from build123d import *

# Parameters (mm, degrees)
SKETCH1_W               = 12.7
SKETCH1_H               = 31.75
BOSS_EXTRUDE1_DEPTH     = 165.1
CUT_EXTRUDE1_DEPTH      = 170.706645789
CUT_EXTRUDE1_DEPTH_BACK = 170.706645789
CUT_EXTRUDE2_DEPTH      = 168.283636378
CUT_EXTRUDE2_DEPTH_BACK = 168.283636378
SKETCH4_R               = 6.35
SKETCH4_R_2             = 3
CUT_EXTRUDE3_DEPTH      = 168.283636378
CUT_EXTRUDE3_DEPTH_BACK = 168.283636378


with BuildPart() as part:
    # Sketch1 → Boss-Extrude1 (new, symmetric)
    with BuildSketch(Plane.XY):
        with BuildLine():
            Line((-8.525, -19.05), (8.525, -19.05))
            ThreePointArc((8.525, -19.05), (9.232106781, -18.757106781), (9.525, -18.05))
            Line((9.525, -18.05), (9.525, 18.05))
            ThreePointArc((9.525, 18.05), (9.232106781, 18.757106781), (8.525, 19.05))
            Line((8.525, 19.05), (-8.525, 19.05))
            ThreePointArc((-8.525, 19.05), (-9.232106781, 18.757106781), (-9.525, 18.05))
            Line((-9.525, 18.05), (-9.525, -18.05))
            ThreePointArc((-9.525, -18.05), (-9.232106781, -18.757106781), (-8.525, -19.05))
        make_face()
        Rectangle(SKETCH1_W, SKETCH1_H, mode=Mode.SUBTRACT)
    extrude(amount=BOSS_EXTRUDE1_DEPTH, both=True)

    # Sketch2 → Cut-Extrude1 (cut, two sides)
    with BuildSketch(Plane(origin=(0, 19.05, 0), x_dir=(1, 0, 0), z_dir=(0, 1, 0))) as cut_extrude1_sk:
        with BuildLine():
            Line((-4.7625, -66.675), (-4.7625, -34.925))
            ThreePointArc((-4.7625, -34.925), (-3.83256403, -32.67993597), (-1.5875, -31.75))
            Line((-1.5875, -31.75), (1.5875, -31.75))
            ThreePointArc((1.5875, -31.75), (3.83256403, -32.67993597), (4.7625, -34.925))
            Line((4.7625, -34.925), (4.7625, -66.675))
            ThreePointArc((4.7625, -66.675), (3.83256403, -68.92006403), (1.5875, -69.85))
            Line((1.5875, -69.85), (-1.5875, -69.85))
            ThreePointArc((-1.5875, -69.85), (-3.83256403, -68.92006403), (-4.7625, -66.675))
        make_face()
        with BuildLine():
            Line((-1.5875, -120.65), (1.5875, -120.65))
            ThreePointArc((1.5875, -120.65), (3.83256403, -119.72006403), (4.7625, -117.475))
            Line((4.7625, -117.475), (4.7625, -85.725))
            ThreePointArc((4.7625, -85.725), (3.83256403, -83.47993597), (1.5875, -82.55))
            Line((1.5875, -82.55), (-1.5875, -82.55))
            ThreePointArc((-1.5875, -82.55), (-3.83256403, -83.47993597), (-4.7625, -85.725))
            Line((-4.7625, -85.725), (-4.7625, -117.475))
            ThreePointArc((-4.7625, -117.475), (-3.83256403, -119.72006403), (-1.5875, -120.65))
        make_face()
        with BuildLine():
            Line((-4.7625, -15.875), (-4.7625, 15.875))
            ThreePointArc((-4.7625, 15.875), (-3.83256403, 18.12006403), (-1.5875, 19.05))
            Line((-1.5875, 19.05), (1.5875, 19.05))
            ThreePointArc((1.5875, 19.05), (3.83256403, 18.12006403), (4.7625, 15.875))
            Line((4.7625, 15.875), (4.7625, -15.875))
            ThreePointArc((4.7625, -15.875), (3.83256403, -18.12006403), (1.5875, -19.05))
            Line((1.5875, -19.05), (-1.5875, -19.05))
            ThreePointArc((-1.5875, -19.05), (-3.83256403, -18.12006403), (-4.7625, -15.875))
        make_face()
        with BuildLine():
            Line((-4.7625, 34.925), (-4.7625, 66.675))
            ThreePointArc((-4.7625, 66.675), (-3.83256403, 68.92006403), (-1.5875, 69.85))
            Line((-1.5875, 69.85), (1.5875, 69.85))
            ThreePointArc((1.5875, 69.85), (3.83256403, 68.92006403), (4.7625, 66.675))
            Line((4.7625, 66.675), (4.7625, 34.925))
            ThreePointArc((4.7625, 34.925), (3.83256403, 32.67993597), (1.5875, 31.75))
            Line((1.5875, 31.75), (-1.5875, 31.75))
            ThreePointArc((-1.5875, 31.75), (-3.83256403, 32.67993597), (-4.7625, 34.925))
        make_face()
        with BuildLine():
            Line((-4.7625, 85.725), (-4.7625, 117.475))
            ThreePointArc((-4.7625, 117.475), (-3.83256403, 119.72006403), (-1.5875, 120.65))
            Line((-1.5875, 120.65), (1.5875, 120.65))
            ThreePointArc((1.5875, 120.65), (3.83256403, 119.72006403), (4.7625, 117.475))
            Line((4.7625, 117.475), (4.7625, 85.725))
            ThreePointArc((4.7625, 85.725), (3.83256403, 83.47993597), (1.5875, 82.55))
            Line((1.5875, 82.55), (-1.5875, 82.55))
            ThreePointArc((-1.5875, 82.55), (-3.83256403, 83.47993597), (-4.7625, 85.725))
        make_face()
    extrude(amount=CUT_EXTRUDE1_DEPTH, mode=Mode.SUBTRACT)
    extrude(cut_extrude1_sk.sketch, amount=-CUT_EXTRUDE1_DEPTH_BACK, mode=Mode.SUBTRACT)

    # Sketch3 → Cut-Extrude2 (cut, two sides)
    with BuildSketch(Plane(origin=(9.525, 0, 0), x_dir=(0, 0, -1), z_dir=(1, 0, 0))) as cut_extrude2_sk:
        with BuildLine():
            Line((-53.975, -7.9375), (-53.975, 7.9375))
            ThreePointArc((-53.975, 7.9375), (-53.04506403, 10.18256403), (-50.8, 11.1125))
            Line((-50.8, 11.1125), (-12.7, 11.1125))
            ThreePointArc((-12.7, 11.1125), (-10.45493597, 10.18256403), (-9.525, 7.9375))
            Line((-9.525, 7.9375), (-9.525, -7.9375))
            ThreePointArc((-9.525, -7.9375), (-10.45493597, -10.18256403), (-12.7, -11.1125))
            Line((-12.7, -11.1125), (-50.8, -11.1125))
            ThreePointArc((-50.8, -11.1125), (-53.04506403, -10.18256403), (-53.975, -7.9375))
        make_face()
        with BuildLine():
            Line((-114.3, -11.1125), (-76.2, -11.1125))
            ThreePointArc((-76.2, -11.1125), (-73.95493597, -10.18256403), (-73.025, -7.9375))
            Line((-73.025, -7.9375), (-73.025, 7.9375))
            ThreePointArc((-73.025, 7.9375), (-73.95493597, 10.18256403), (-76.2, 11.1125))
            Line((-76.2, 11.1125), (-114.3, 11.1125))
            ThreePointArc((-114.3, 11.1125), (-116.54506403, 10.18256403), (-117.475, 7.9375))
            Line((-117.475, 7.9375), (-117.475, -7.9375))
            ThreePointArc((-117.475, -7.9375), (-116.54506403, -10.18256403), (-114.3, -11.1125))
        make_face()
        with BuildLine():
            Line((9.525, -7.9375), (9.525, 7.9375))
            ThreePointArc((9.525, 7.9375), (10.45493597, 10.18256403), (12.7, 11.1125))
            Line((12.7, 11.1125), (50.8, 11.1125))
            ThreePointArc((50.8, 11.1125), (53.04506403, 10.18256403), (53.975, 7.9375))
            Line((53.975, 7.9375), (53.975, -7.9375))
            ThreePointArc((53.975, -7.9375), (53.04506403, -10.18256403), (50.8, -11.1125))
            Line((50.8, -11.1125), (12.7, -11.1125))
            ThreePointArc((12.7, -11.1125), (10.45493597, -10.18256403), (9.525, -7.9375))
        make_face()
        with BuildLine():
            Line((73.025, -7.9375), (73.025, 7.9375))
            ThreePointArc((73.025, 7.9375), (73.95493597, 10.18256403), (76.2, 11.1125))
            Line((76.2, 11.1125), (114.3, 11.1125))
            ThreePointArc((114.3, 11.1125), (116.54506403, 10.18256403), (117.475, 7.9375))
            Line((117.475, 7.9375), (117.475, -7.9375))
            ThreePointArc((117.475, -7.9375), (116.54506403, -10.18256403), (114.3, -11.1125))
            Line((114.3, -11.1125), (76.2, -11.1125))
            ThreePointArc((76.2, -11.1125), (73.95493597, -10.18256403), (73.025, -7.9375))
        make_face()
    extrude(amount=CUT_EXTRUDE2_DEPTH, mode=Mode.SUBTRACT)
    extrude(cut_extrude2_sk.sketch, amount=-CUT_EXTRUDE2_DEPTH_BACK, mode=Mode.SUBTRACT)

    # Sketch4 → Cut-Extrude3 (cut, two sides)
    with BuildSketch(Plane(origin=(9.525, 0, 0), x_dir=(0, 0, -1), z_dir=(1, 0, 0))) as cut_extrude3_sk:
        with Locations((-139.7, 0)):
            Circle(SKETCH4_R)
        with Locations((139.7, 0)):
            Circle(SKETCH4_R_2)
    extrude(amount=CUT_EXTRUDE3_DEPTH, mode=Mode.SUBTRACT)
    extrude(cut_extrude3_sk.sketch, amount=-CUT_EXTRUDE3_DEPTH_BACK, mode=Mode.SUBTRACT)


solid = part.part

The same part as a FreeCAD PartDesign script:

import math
import FreeCAD as App
import Part
import Sketcher
Q = App.Units.Quantity


def add_polygon(sketch, points):
    """Adds a closed chain of lines whose ends are joined by coincident constraints."""
    first, n = sketch.GeometryCount, len(points)
    for a, b in zip(points, points[1:] + points[:1]):
        sketch.addGeometry(Part.LineSegment(App.Vector(*a, 0), App.Vector(*b, 0)), False)
    for i in range(n):
        sketch.addConstraint(Sketcher.Constraint("Coincident", first + i, 2, first + (i + 1) % n, 1))

doc = App.newDocument("Part")
body = doc.addObject("PartDesign::Body", "Body")

sketch1 = body.newObject("Sketcher::SketchObject", "Sketch")
sketch1.AttachmentSupport = (doc.getObject("XY_Plane"), [""])
sketch1.MapMode = "FlatFace"
sketch1.addGeometry(Part.LineSegment(App.Vector(-8.5, -19.1, 0), App.Vector(8.5, -19.1, 0)), False)
sketch1.addGeometry(Part.ArcOfCircle(Part.Circle(App.Vector(8.5, -18, 0), App.Vector(0, 0, 1), 1), math.radians(-90), math.radians(0)), False)
sketch1.addGeometry(Part.LineSegment(App.Vector(9.5, -18.1, 0), App.Vector(9.5, 18.1, 0)), False)
sketch1.addGeometry(Part.ArcOfCircle(Part.Circle(App.Vector(8.5, 18, 0), App.Vector(0, 0, 1), 1), math.radians(0), math.radians(90)), False)
sketch1.addGeometry(Part.LineSegment(App.Vector(8.5, 19.1, 0), App.Vector(-8.5, 19.1, 0)), False)
sketch1.addGeometry(Part.ArcOfCircle(Part.Circle(App.Vector(-8.5, 18, 0), App.Vector(0, 0, 1), 1), math.radians(90), math.radians(180)), False)
sketch1.addGeometry(Part.LineSegment(App.Vector(-9.5, 18.1, 0), App.Vector(-9.5, -18.1, 0)), False)
sketch1.addGeometry(Part.ArcOfCircle(Part.Circle(App.Vector(-8.5, -18, 0), App.Vector(0, 0, 1), 1), math.radians(-180), math.radians(-90)), False)
add_polygon(sketch1, [(6.3, -15.9), (-6.3, -15.9), (-6.3, 15.9), (6.3, 15.9)])
sketch1.addConstraint(Sketcher.Constraint("Tangent", 0, 2, 1, 1))
sketch1.addConstraint(Sketcher.Constraint("Tangent", 1, 2, 2, 1))
sketch1.addConstraint(Sketcher.Constraint("Tangent", 2, 2, 3, 1))
sketch1.addConstraint(Sketcher.Constraint("Tangent", 3, 2, 4, 1))
sketch1.addConstraint(Sketcher.Constraint("Tangent", 4, 2, 5, 1))
sketch1.addConstraint(Sketcher.Constraint("Tangent", 5, 2, 6, 1))
sketch1.addConstraint(Sketcher.Constraint("Tangent", 6, 2, 7, 1))
sketch1.addConstraint(Sketcher.Constraint("Tangent", 7, 2, 0, 1))
sketch1.addConstraint(Sketcher.Constraint("Horizontal", 0))
sketch1.addConstraint(Sketcher.Constraint("Vertical", 2))
sketch1.addConstraint(Sketcher.Constraint("Horizontal", 4))
sketch1.addConstraint(Sketcher.Constraint("Vertical", 6))
sketch1.addConstraint(Sketcher.Constraint("Horizontal", 8))
sketch1.addConstraint(Sketcher.Constraint("Vertical", 9))
sketch1.addConstraint(Sketcher.Constraint("Horizontal", 10))
sketch1.addConstraint(Sketcher.Constraint("Vertical", 11))
sketch1.addConstraint(Sketcher.Constraint("Equal", 1, 3))
sketch1.addConstraint(Sketcher.Constraint("Equal", 3, 5))
sketch1.addConstraint(Sketcher.Constraint("Equal", 5, 7))
sketch1.addConstraint(Sketcher.Constraint("Symmetric", 1, 3, 5, 3, -1, 1))
sketch1.addConstraint(Sketcher.Constraint("Symmetric", 8, 2, 10, 2, -1, 1))
sketch1.addConstraint(Sketcher.Constraint("DistanceX", 8, 2, 8, 1, Q("0.5 in")))
sketch1.addConstraint(Sketcher.Constraint("DistanceY", 9, 1, 9, 2, Q("1.25 in")))
sketch1.addConstraint(Sketcher.Constraint("DistanceY", 0, 2, -1, 1, Q("0.75 in")))
sketch1.addConstraint(Sketcher.Constraint("Radius", 1, 1.0))
sketch1.addConstraint(Sketcher.Constraint("DistanceX", 5, 2, 2, 2, Q("0.75 in")))
pad1 = body.newObject("PartDesign::Pad", "Pad")
pad1.Profile = sketch1
pad1.Length = Q("13 in")
pad1.Midplane = True

sketch2 = body.newObject("Sketcher::SketchObject", "Sketch001")
sketch2.AttachmentSupport = (doc.getObject("XZ_Plane"), [""])
sketch2.MapMode = "FlatFace"
sketch2.AttachmentOffset = App.Placement(App.Vector(0, 0, -0.75 * 25.4), App.Rotation())
sketch2.addGeometry(Part.LineSegment(App.Vector(-4.8, 34.9, 0), App.Vector(-4.8, 66.7, 0)), False)
sketch2.addGeometry(Part.ArcOfCircle(Part.Circle(App.Vector(-1.6, 66.7, 0), App.Vector(0, 0, 1), 3.2), math.radians(90), math.radians(180)), False)
sketch2.addGeometry(Part.LineSegment(App.Vector(-1.6, 69.8, 0), App.Vector(1.6, 69.8, 0)), False)
sketch2.addGeometry(Part.ArcOfCircle(Part.Circle(App.Vector(1.6, 66.7, 0), App.Vector(0, 0, 1), 3.2), math.radians(0), math.radians(90)), False)
sketch2.addGeometry(Part.LineSegment(App.Vector(4.8, 66.7, 0), App.Vector(4.8, 34.9, 0)), False)
sketch2.addGeometry(Part.ArcOfCircle(Part.Circle(App.Vector(1.6, 34.9, 0), App.Vector(0, 0, 1), 3.2), math.radians(-90), math.radians(0)), False)
sketch2.addGeometry(Part.LineSegment(App.Vector(1.6, 31.8, 0), App.Vector(-1.6, 31.8, 0)), False)
sketch2.addGeometry(Part.ArcOfCircle(Part.Circle(App.Vector(-1.6, 34.9, 0), App.Vector(0, 0, 1), 3.2), math.radians(-180), math.radians(-90)), False)
sketch2.addGeometry(Part.LineSegment(App.Vector(-1.6, 120.7, 0), App.Vector(1.6, 120.7, 0)), False)
sketch2.addGeometry(Part.ArcOfCircle(Part.Circle(App.Vector(1.6, 117.5, 0), App.Vector(0, 0, 1), 3.2), math.radians(0), math.radians(90)), False)
sketch2.addGeometry(Part.LineSegment(App.Vector(4.8, 117.5, 0), App.Vector(4.8, 85.7, 0)), False)
sketch2.addGeometry(Part.ArcOfCircle(Part.Circle(App.Vector(1.6, 85.7, 0), App.Vector(0, 0, 1), 3.2), math.radians(-90), math.radians(0)), False)
sketch2.addGeometry(Part.LineSegment(App.Vector(1.6, 82.5, 0), App.Vector(-1.6, 82.5, 0)), False)
sketch2.addGeometry(Part.ArcOfCircle(Part.Circle(App.Vector(-1.6, 85.7, 0), App.Vector(0, 0, 1), 3.2), math.radians(-180), math.radians(-90)), False)
sketch2.addGeometry(Part.LineSegment(App.Vector(-4.8, 85.7, 0), App.Vector(-4.8, 117.5, 0)), False)
sketch2.addGeometry(Part.ArcOfCircle(Part.Circle(App.Vector(-1.6, 117.5, 0), App.Vector(0, 0, 1), 3.2), math.radians(90), math.radians(180)), False)
sketch2.addGeometry(Part.LineSegment(App.Vector(-4.8, -15.9, 0), App.Vector(-4.8, 15.9, 0)), False)
sketch2.addGeometry(Part.ArcOfCircle(Part.Circle(App.Vector(-1.6, 15.9, 0), App.Vector(0, 0, 1), 3.2), math.radians(90), math.radians(180)), False)
sketch2.addGeometry(Part.LineSegment(App.Vector(-1.6, 19.1, 0), App.Vector(1.6, 19.1, 0)), False)
sketch2.addGeometry(Part.ArcOfCircle(Part.Circle(App.Vector(1.6, 15.9, 0), App.Vector(0, 0, 1), 3.2), math.radians(0), math.radians(90)), False)
sketch2.addGeometry(Part.LineSegment(App.Vector(4.8, 15.9, 0), App.Vector(4.8, -15.9, 0)), False)
sketch2.addGeometry(Part.ArcOfCircle(Part.Circle(App.Vector(1.6, -15.9, 0), App.Vector(0, 0, 1), 3.2), math.radians(-90), math.radians(0)), False)
sketch2.addGeometry(Part.LineSegment(App.Vector(1.6, -19.1, 0), App.Vector(-1.6, -19.1, 0)), False)
sketch2.addGeometry(Part.ArcOfCircle(Part.Circle(App.Vector(-1.6, -15.9, 0), App.Vector(0, 0, 1), 3.2), math.radians(-180), math.radians(-90)), False)
sketch2.addGeometry(Part.LineSegment(App.Vector(-4.8, -66.7, 0), App.Vector(-4.8, -34.9, 0)), False)
sketch2.addGeometry(Part.ArcOfCircle(Part.Circle(App.Vector(-1.6, -34.9, 0), App.Vector(0, 0, 1), 3.2), math.radians(90), math.radians(180)), False)
sketch2.addGeometry(Part.LineSegment(App.Vector(-1.6, -31.8, 0), App.Vector(1.6, -31.8, 0)), False)
sketch2.addGeometry(Part.ArcOfCircle(Part.Circle(App.Vector(1.6, -34.9, 0), App.Vector(0, 0, 1), 3.2), math.radians(0), math.radians(90)), False)
sketch2.addGeometry(Part.LineSegment(App.Vector(4.8, -34.9, 0), App.Vector(4.8, -66.7, 0)), False)
sketch2.addGeometry(Part.ArcOfCircle(Part.Circle(App.Vector(1.6, -66.7, 0), App.Vector(0, 0, 1), 3.2), math.radians(-90), math.radians(0)), False)
sketch2.addGeometry(Part.LineSegment(App.Vector(1.6, -69.8, 0), App.Vector(-1.6, -69.8, 0)), False)
sketch2.addGeometry(Part.ArcOfCircle(Part.Circle(App.Vector(-1.6, -66.7, 0), App.Vector(0, 0, 1), 3.2), math.radians(-180), math.radians(-90)), False)
sketch2.addGeometry(Part.LineSegment(App.Vector(-4.8, -117.5, 0), App.Vector(-4.8, -85.7, 0)), False)
sketch2.addGeometry(Part.ArcOfCircle(Part.Circle(App.Vector(-1.6, -85.7, 0), App.Vector(0, 0, 1), 3.2), math.radians(90), math.radians(180)), False)
sketch2.addGeometry(Part.LineSegment(App.Vector(-1.6, -82.5, 0), App.Vector(1.6, -82.5, 0)), False)
sketch2.addGeometry(Part.ArcOfCircle(Part.Circle(App.Vector(1.6, -85.7, 0), App.Vector(0, 0, 1), 3.2), math.radians(0), math.radians(90)), False)
sketch2.addGeometry(Part.LineSegment(App.Vector(4.8, -85.7, 0), App.Vector(4.8, -117.5, 0)), False)
sketch2.addGeometry(Part.ArcOfCircle(Part.Circle(App.Vector(1.6, -117.5, 0), App.Vector(0, 0, 1), 3.2), math.radians(-90), math.radians(0)), False)
sketch2.addGeometry(Part.LineSegment(App.Vector(1.6, -120.7, 0), App.Vector(-1.6, -120.7, 0)), False)
sketch2.addGeometry(Part.ArcOfCircle(Part.Circle(App.Vector(-1.6, -117.5, 0), App.Vector(0, 0, 1), 3.2), math.radians(-180), math.radians(-90)), False)
sketch2.addConstraint(Sketcher.Constraint("Tangent", 0, 2, 1, 2))
sketch2.addConstraint(Sketcher.Constraint("Tangent", 1, 1, 2, 1))
sketch2.addConstraint(Sketcher.Constraint("Tangent", 2, 2, 3, 2))
sketch2.addConstraint(Sketcher.Constraint("Tangent", 3, 1, 4, 1))
sketch2.addConstraint(Sketcher.Constraint("Tangent", 4, 2, 5, 2))
sketch2.addConstraint(Sketcher.Constraint("Tangent", 5, 1, 6, 1))
sketch2.addConstraint(Sketcher.Constraint("Tangent", 6, 2, 7, 2))
sketch2.addConstraint(Sketcher.Constraint("Tangent", 7, 1, 0, 1))
sketch2.addConstraint(Sketcher.Constraint("Tangent", 8, 2, 9, 2))
sketch2.addConstraint(Sketcher.Constraint("Tangent", 9, 1, 10, 1))
sketch2.addConstraint(Sketcher.Constraint("Tangent", 10, 2, 11, 2))
sketch2.addConstraint(Sketcher.Constraint("Tangent", 11, 1, 12, 1))
sketch2.addConstraint(Sketcher.Constraint("Tangent", 12, 2, 13, 2))
sketch2.addConstraint(Sketcher.Constraint("Tangent", 13, 1, 14, 1))
sketch2.addConstraint(Sketcher.Constraint("Tangent", 14, 2, 15, 2))
sketch2.addConstraint(Sketcher.Constraint("Tangent", 15, 1, 8, 1))
sketch2.addConstraint(Sketcher.Constraint("Tangent", 16, 2, 17, 2))
sketch2.addConstraint(Sketcher.Constraint("Tangent", 17, 1, 18, 1))
sketch2.addConstraint(Sketcher.Constraint("Tangent", 18, 2, 19, 2))
sketch2.addConstraint(Sketcher.Constraint("Tangent", 19, 1, 20, 1))
sketch2.addConstraint(Sketcher.Constraint("Tangent", 20, 2, 21, 2))
sketch2.addConstraint(Sketcher.Constraint("Tangent", 21, 1, 22, 1))
sketch2.addConstraint(Sketcher.Constraint("Tangent", 22, 2, 23, 2))
sketch2.addConstraint(Sketcher.Constraint("Tangent", 23, 1, 16, 1))
sketch2.addConstraint(Sketcher.Constraint("Tangent", 24, 2, 25, 2))
sketch2.addConstraint(Sketcher.Constraint("Tangent", 25, 1, 26, 1))
sketch2.addConstraint(Sketcher.Constraint("Tangent", 26, 2, 27, 2))
sketch2.addConstraint(Sketcher.Constraint("Tangent", 27, 1, 28, 1))
sketch2.addConstraint(Sketcher.Constraint("Tangent", 28, 2, 29, 2))
sketch2.addConstraint(Sketcher.Constraint("Tangent", 29, 1, 30, 1))
sketch2.addConstraint(Sketcher.Constraint("Tangent", 30, 2, 31, 2))
sketch2.addConstraint(Sketcher.Constraint("Tangent", 31, 1, 24, 1))
sketch2.addConstraint(Sketcher.Constraint("Tangent", 32, 2, 33, 2))
sketch2.addConstraint(Sketcher.Constraint("Tangent", 33, 1, 34, 1))
sketch2.addConstraint(Sketcher.Constraint("Tangent", 34, 2, 35, 2))
sketch2.addConstraint(Sketcher.Constraint("Tangent", 35, 1, 36, 1))
sketch2.addConstraint(Sketcher.Constraint("Tangent", 36, 2, 37, 2))
sketch2.addConstraint(Sketcher.Constraint("Tangent", 37, 1, 38, 1))
sketch2.addConstraint(Sketcher.Constraint("Tangent", 38, 2, 39, 2))
sketch2.addConstraint(Sketcher.Constraint("Tangent", 39, 1, 32, 1))
sketch2.addConstraint(Sketcher.Constraint("Vertical", 0))
sketch2.addConstraint(Sketcher.Constraint("Horizontal", 2))
sketch2.addConstraint(Sketcher.Constraint("Vertical", 4))
sketch2.addConstraint(Sketcher.Constraint("Horizontal", 6))
sketch2.addConstraint(Sketcher.Constraint("Horizontal", 8))
sketch2.addConstraint(Sketcher.Constraint("Vertical", 10))
sketch2.addConstraint(Sketcher.Constraint("Horizontal", 12))
sketch2.addConstraint(Sketcher.Constraint("Vertical", 14))
sketch2.addConstraint(Sketcher.Constraint("Vertical", 16))
sketch2.addConstraint(Sketcher.Constraint("Horizontal", 18))
sketch2.addConstraint(Sketcher.Constraint("Vertical", 20))
sketch2.addConstraint(Sketcher.Constraint("Horizontal", 22))
sketch2.addConstraint(Sketcher.Constraint("Vertical", 24))
sketch2.addConstraint(Sketcher.Constraint("Horizontal", 26))
sketch2.addConstraint(Sketcher.Constraint("Vertical", 28))
sketch2.addConstraint(Sketcher.Constraint("Horizontal", 30))
sketch2.addConstraint(Sketcher.Constraint("Vertical", 32))
sketch2.addConstraint(Sketcher.Constraint("Horizontal", 34))
sketch2.addConstraint(Sketcher.Constraint("Vertical", 36))
sketch2.addConstraint(Sketcher.Constraint("Horizontal", 38))
sketch2.addConstraint(Sketcher.Constraint("Equal", 1, 3))
sketch2.addConstraint(Sketcher.Constraint("Equal", 3, 5))
sketch2.addConstraint(Sketcher.Constraint("Equal", 5, 7))
sketch2.addConstraint(Sketcher.Constraint("Equal", 7, 9))
sketch2.addConstraint(Sketcher.Constraint("Equal", 9, 11))
sketch2.addConstraint(Sketcher.Constraint("Equal", 11, 13))
sketch2.addConstraint(Sketcher.Constraint("Equal", 13, 15))
sketch2.addConstraint(Sketcher.Constraint("Equal", 15, 17))
sketch2.addConstraint(Sketcher.Constraint("Equal", 17, 19))
sketch2.addConstraint(Sketcher.Constraint("Equal", 19, 21))
sketch2.addConstraint(Sketcher.Constraint("Equal", 21, 23))
sketch2.addConstraint(Sketcher.Constraint("Equal", 23, 25))
sketch2.addConstraint(Sketcher.Constraint("Equal", 25, 27))
sketch2.addConstraint(Sketcher.Constraint("Equal", 27, 29))
sketch2.addConstraint(Sketcher.Constraint("Equal", 29, 31))
sketch2.addConstraint(Sketcher.Constraint("Equal", 31, 33))
sketch2.addConstraint(Sketcher.Constraint("Equal", 33, 35))
sketch2.addConstraint(Sketcher.Constraint("Equal", 35, 37))
sketch2.addConstraint(Sketcher.Constraint("Equal", 37, 39))
sketch2.addConstraint(Sketcher.Constraint("Symmetric", 17, 3, 21, 3, -1, 1))
sketch2.addConstraint(Sketcher.Constraint("Symmetric", 5, 3, 25, 3, -1, 1))
sketch2.addConstraint(Sketcher.Constraint("Symmetric", 1, 3, 29, 3, -1, 1))
sketch2.addConstraint(Sketcher.Constraint("Symmetric", 11, 3, 33, 3, -1, 1))
sketch2.addConstraint(Sketcher.Constraint("Symmetric", 15, 3, 37, 3, -1, 1))
sketch2.addConstraint(Sketcher.Constraint("Vertical", 5, 3, 9, 3))
sketch2.addConstraint(Sketcher.Constraint("Vertical", 7, 3, 13, 3))
sketch2.addConstraint(Sketcher.Constraint("Vertical", 15, 3, 17, 3))
sketch2.addConstraint(Sketcher.Constraint("Vertical", 11, 3, 19, 3))
sketch2.addConstraint(Sketcher.Constraint("Equal", 4, 10))
sketch2.addConstraint(Sketcher.Constraint("Equal", 14, 16))
sketch2.addConstraint(Sketcher.Constraint("Radius", 1, Q("0.125 in")))
sketch2.addConstraint(Sketcher.Constraint("DistanceY", 3, 3, 9, 3, Q("2 in")))
sketch2.addConstraint(Sketcher.Constraint("DistanceY", 17, 3, 1, 3, Q("2 in")))
sketch2.addConstraint(Sketcher.Constraint("DistanceY", 0, 1, 0, 2, Q("1.25 in")))
sketch2.addConstraint(Sketcher.Constraint("DistanceX", 2, 1, 2, 2, Q("0.125 in")))
pocket1 = body.newObject("PartDesign::Pocket", "Pocket")
pocket1.Profile = sketch2
pocket1.Type = "ThroughAll"
pocket1.Midplane = True

sketch3 = body.newObject("Sketcher::SketchObject", "Sketch002")
sketch3.AttachmentSupport = (doc.getObject("YZ_Plane"), [""])
sketch3.MapMode = "FlatFace"
sketch3.AttachmentOffset = App.Placement(App.Vector(0, 0, 0.375 * 25.4), App.Rotation())
sketch3.addGeometry(Part.LineSegment(App.Vector(7.9, 54, 0), App.Vector(-7.9, 54, 0)), False)
sketch3.addGeometry(Part.ArcOfCircle(Part.Circle(App.Vector(-7.9, 50.8, 0), App.Vector(0, 0, 1), 3.2), math.radians(90), math.radians(180)), False)
sketch3.addGeometry(Part.LineSegment(App.Vector(-11.1, 50.8, 0), App.Vector(-11.1, 12.7, 0)), False)
sketch3.addGeometry(Part.ArcOfCircle(Part.Circle(App.Vector(-7.9, 12.7, 0), App.Vector(0, 0, 1), 3.2), math.radians(-180), math.radians(-90)), False)
sketch3.addGeometry(Part.LineSegment(App.Vector(-7.9, 9.5, 0), App.Vector(7.9, 9.5, 0)), False)
sketch3.addGeometry(Part.ArcOfCircle(Part.Circle(App.Vector(7.9, 12.7, 0), App.Vector(0, 0, 1), 3.2), math.radians(-90), math.radians(0)), False)
sketch3.addGeometry(Part.LineSegment(App.Vector(11.1, 12.7, 0), App.Vector(11.1, 50.8, 0)), False)
sketch3.addGeometry(Part.ArcOfCircle(Part.Circle(App.Vector(7.9, 50.8, 0), App.Vector(0, 0, 1), 3.2), math.radians(0), math.radians(90)), False)
sketch3.addGeometry(Part.LineSegment(App.Vector(-11.1, 114.3, 0), App.Vector(-11.1, 76.2, 0)), False)
sketch3.addGeometry(Part.ArcOfCircle(Part.Circle(App.Vector(-7.9, 76.2, 0), App.Vector(0, 0, 1), 3.2), math.radians(-180), math.radians(-90)), False)
sketch3.addGeometry(Part.LineSegment(App.Vector(-7.9, 73, 0), App.Vector(7.9, 73, 0)), False)
sketch3.addGeometry(Part.ArcOfCircle(Part.Circle(App.Vector(7.9, 76.2, 0), App.Vector(0, 0, 1), 3.2), math.radians(-90), math.radians(0)), False)
sketch3.addGeometry(Part.LineSegment(App.Vector(11.1, 76.2, 0), App.Vector(11.1, 114.3, 0)), False)
sketch3.addGeometry(Part.ArcOfCircle(Part.Circle(App.Vector(7.9, 114.3, 0), App.Vector(0, 0, 1), 3.2), math.radians(0), math.radians(90)), False)
sketch3.addGeometry(Part.LineSegment(App.Vector(7.9, 117.5, 0), App.Vector(-7.9, 117.5, 0)), False)
sketch3.addGeometry(Part.ArcOfCircle(Part.Circle(App.Vector(-7.9, 114.3, 0), App.Vector(0, 0, 1), 3.2), math.radians(90), math.radians(180)), False)
sketch3.addGeometry(Part.LineSegment(App.Vector(7.9, -9.5, 0), App.Vector(-7.9, -9.5, 0)), False)
sketch3.addGeometry(Part.ArcOfCircle(Part.Circle(App.Vector(-7.9, -12.7, 0), App.Vector(0, 0, 1), 3.2), math.radians(90), math.radians(180)), False)
sketch3.addGeometry(Part.LineSegment(App.Vector(-11.1, -12.7, 0), App.Vector(-11.1, -50.8, 0)), False)
sketch3.addGeometry(Part.ArcOfCircle(Part.Circle(App.Vector(-7.9, -50.8, 0), App.Vector(0, 0, 1), 3.2), math.radians(-180), math.radians(-90)), False)
sketch3.addGeometry(Part.LineSegment(App.Vector(-7.9, -54, 0), App.Vector(7.9, -54, 0)), False)
sketch3.addGeometry(Part.ArcOfCircle(Part.Circle(App.Vector(7.9, -50.8, 0), App.Vector(0, 0, 1), 3.2), math.radians(-90), math.radians(0)), False)
sketch3.addGeometry(Part.LineSegment(App.Vector(11.1, -50.8, 0), App.Vector(11.1, -12.7, 0)), False)
sketch3.addGeometry(Part.ArcOfCircle(Part.Circle(App.Vector(7.9, -12.7, 0), App.Vector(0, 0, 1), 3.2), math.radians(0), math.radians(90)), False)
sketch3.addGeometry(Part.LineSegment(App.Vector(7.9, -73, 0), App.Vector(-7.9, -73, 0)), False)
sketch3.addGeometry(Part.ArcOfCircle(Part.Circle(App.Vector(-7.9, -76.2, 0), App.Vector(0, 0, 1), 3.2), math.radians(90), math.radians(180)), False)
sketch3.addGeometry(Part.LineSegment(App.Vector(-11.1, -76.2, 0), App.Vector(-11.1, -114.3, 0)), False)
sketch3.addGeometry(Part.ArcOfCircle(Part.Circle(App.Vector(-7.9, -114.3, 0), App.Vector(0, 0, 1), 3.2), math.radians(-180), math.radians(-90)), False)
sketch3.addGeometry(Part.LineSegment(App.Vector(-7.9, -117.5, 0), App.Vector(7.9, -117.5, 0)), False)
sketch3.addGeometry(Part.ArcOfCircle(Part.Circle(App.Vector(7.9, -114.3, 0), App.Vector(0, 0, 1), 3.2), math.radians(-90), math.radians(0)), False)
sketch3.addGeometry(Part.LineSegment(App.Vector(11.1, -114.3, 0), App.Vector(11.1, -76.2, 0)), False)
sketch3.addGeometry(Part.ArcOfCircle(Part.Circle(App.Vector(7.9, -76.2, 0), App.Vector(0, 0, 1), 3.2), math.radians(0), math.radians(90)), False)
sketch3.addConstraint(Sketcher.Constraint("Tangent", 0, 2, 1, 1))
sketch3.addConstraint(Sketcher.Constraint("Tangent", 1, 2, 2, 1))
sketch3.addConstraint(Sketcher.Constraint("Tangent", 2, 2, 3, 1))
sketch3.addConstraint(Sketcher.Constraint("Tangent", 3, 2, 4, 1))
sketch3.addConstraint(Sketcher.Constraint("Tangent", 4, 2, 5, 1))
sketch3.addConstraint(Sketcher.Constraint("Tangent", 5, 2, 6, 1))
sketch3.addConstraint(Sketcher.Constraint("Tangent", 6, 2, 7, 1))
sketch3.addConstraint(Sketcher.Constraint("Tangent", 7, 2, 0, 1))
sketch3.addConstraint(Sketcher.Constraint("Tangent", 8, 2, 9, 1))
sketch3.addConstraint(Sketcher.Constraint("Tangent", 9, 2, 10, 1))
sketch3.addConstraint(Sketcher.Constraint("Tangent", 10, 2, 11, 1))
sketch3.addConstraint(Sketcher.Constraint("Tangent", 11, 2, 12, 1))
sketch3.addConstraint(Sketcher.Constraint("Tangent", 12, 2, 13, 1))
sketch3.addConstraint(Sketcher.Constraint("Tangent", 13, 2, 14, 1))
sketch3.addConstraint(Sketcher.Constraint("Tangent", 14, 2, 15, 1))
sketch3.addConstraint(Sketcher.Constraint("Tangent", 15, 2, 8, 1))
sketch3.addConstraint(Sketcher.Constraint("Tangent", 16, 2, 17, 1))
sketch3.addConstraint(Sketcher.Constraint("Tangent", 17, 2, 18, 1))
sketch3.addConstraint(Sketcher.Constraint("Tangent", 18, 2, 19, 1))
sketch3.addConstraint(Sketcher.Constraint("Tangent", 19, 2, 20, 1))
sketch3.addConstraint(Sketcher.Constraint("Tangent", 20, 2, 21, 1))
sketch3.addConstraint(Sketcher.Constraint("Tangent", 21, 2, 22, 1))
sketch3.addConstraint(Sketcher.Constraint("Tangent", 22, 2, 23, 1))
sketch3.addConstraint(Sketcher.Constraint("Tangent", 23, 2, 16, 1))
sketch3.addConstraint(Sketcher.Constraint("Tangent", 24, 2, 25, 1))
sketch3.addConstraint(Sketcher.Constraint("Tangent", 25, 2, 26, 1))
sketch3.addConstraint(Sketcher.Constraint("Tangent", 26, 2, 27, 1))
sketch3.addConstraint(Sketcher.Constraint("Tangent", 27, 2, 28, 1))
sketch3.addConstraint(Sketcher.Constraint("Tangent", 28, 2, 29, 1))
sketch3.addConstraint(Sketcher.Constraint("Tangent", 29, 2, 30, 1))
sketch3.addConstraint(Sketcher.Constraint("Tangent", 30, 2, 31, 1))
sketch3.addConstraint(Sketcher.Constraint("Tangent", 31, 2, 24, 1))
sketch3.addConstraint(Sketcher.Constraint("Horizontal", 0))
sketch3.addConstraint(Sketcher.Constraint("Vertical", 2))
sketch3.addConstraint(Sketcher.Constraint("Horizontal", 4))
sketch3.addConstraint(Sketcher.Constraint("Vertical", 6))
sketch3.addConstraint(Sketcher.Constraint("Vertical", 8))
sketch3.addConstraint(Sketcher.Constraint("Horizontal", 10))
sketch3.addConstraint(Sketcher.Constraint("Vertical", 12))
sketch3.addConstraint(Sketcher.Constraint("Horizontal", 14))
sketch3.addConstraint(Sketcher.Constraint("Horizontal", 16))
sketch3.addConstraint(Sketcher.Constraint("Vertical", 18))
sketch3.addConstraint(Sketcher.Constraint("Horizontal", 20))
sketch3.addConstraint(Sketcher.Constraint("Vertical", 22))
sketch3.addConstraint(Sketcher.Constraint("Horizontal", 24))
sketch3.addConstraint(Sketcher.Constraint("Vertical", 26))
sketch3.addConstraint(Sketcher.Constraint("Horizontal", 28))
sketch3.addConstraint(Sketcher.Constraint("Vertical", 30))
sketch3.addConstraint(Sketcher.Constraint("Equal", 1, 3))
sketch3.addConstraint(Sketcher.Constraint("Equal", 3, 5))
sketch3.addConstraint(Sketcher.Constraint("Equal", 5, 7))
sketch3.addConstraint(Sketcher.Constraint("Equal", 7, 9))
sketch3.addConstraint(Sketcher.Constraint("Equal", 9, 11))
sketch3.addConstraint(Sketcher.Constraint("Equal", 11, 13))
sketch3.addConstraint(Sketcher.Constraint("Equal", 13, 15))
sketch3.addConstraint(Sketcher.Constraint("Equal", 15, 17))
sketch3.addConstraint(Sketcher.Constraint("Equal", 17, 19))
sketch3.addConstraint(Sketcher.Constraint("Equal", 19, 21))
sketch3.addConstraint(Sketcher.Constraint("Equal", 21, 23))
sketch3.addConstraint(Sketcher.Constraint("Equal", 23, 25))
sketch3.addConstraint(Sketcher.Constraint("Equal", 25, 27))
sketch3.addConstraint(Sketcher.Constraint("Equal", 27, 29))
sketch3.addConstraint(Sketcher.Constraint("Equal", 29, 31))
sketch3.addConstraint(Sketcher.Constraint("Symmetric", 5, 3, 17, 3, -1, 1))
sketch3.addConstraint(Sketcher.Constraint("Symmetric", 1, 3, 21, 3, -1, 1))
sketch3.addConstraint(Sketcher.Constraint("Symmetric", 11, 3, 25, 3, -1, 1))
sketch3.addConstraint(Sketcher.Constraint("Symmetric", 15, 3, 29, 3, -1, 1))
sketch3.addConstraint(Sketcher.Constraint("Vertical", 3, 3, 9, 3))
sketch3.addConstraint(Sketcher.Constraint("Vertical", 7, 3, 11, 3))
sketch3.addConstraint(Sketcher.Constraint("Vertical", 15, 3, 17, 3))
sketch3.addConstraint(Sketcher.Constraint("Equal", 6, 8))
sketch3.addConstraint(Sketcher.Constraint("DistanceY", 2, 2, 2, 1, Q("1.5 in")))
sketch3.addConstraint(Sketcher.Constraint("DistanceY", -1, 1, 1, 3, Q("2 in")))
sketch3.addConstraint(Sketcher.Constraint("DistanceY", -1, 1, 9, 3, Q("3 in")))
sketch3.addConstraint(Sketcher.Constraint("Radius", 1, Q("0.125 in")))
sketch3.addConstraint(Sketcher.Constraint("DistanceX", 0, 2, 0, 1, Q("0.625 in")))
pocket2 = body.newObject("PartDesign::Pocket", "Pocket001")
pocket2.Profile = sketch3
pocket2.Type = "ThroughAll"
pocket2.Midplane = True

sketch4 = body.newObject("Sketcher::SketchObject", "Sketch003")
sketch4.AttachmentSupport = (doc.getObject("YZ_Plane"), [""])
sketch4.MapMode = "FlatFace"
sketch4.AttachmentOffset = App.Placement(App.Vector(0, 0, 0.375 * 25.4), App.Rotation())
sketch4.addGeometry(Part.Circle(App.Vector(0, 139.7, 0), App.Vector(0, 0, 1), 6.3), False)
sketch4.addGeometry(Part.Circle(App.Vector(0, -139.7, 0), App.Vector(0, 0, 1), 3), False)
sketch4.addConstraint(Sketcher.Constraint("Symmetric", 0, 3, 1, 3, -1, 1))
sketch4.addConstraint(Sketcher.Constraint("PointOnObject", 0, 3, -2))
sketch4.addConstraint(Sketcher.Constraint("Diameter", 0, Q("0.5 in")))
sketch4.addConstraint(Sketcher.Constraint("DistanceY", 1, 3, 0, 3, Q("11 in")))
sketch4.addConstraint(Sketcher.Constraint("Diameter", 1, 6.0))
pocket3 = body.newObject("PartDesign::Pocket", "Pocket002")
pocket3.Profile = sketch4
pocket3.Type = "ThroughAll"
pocket3.Midplane = True

doc.recompute()
